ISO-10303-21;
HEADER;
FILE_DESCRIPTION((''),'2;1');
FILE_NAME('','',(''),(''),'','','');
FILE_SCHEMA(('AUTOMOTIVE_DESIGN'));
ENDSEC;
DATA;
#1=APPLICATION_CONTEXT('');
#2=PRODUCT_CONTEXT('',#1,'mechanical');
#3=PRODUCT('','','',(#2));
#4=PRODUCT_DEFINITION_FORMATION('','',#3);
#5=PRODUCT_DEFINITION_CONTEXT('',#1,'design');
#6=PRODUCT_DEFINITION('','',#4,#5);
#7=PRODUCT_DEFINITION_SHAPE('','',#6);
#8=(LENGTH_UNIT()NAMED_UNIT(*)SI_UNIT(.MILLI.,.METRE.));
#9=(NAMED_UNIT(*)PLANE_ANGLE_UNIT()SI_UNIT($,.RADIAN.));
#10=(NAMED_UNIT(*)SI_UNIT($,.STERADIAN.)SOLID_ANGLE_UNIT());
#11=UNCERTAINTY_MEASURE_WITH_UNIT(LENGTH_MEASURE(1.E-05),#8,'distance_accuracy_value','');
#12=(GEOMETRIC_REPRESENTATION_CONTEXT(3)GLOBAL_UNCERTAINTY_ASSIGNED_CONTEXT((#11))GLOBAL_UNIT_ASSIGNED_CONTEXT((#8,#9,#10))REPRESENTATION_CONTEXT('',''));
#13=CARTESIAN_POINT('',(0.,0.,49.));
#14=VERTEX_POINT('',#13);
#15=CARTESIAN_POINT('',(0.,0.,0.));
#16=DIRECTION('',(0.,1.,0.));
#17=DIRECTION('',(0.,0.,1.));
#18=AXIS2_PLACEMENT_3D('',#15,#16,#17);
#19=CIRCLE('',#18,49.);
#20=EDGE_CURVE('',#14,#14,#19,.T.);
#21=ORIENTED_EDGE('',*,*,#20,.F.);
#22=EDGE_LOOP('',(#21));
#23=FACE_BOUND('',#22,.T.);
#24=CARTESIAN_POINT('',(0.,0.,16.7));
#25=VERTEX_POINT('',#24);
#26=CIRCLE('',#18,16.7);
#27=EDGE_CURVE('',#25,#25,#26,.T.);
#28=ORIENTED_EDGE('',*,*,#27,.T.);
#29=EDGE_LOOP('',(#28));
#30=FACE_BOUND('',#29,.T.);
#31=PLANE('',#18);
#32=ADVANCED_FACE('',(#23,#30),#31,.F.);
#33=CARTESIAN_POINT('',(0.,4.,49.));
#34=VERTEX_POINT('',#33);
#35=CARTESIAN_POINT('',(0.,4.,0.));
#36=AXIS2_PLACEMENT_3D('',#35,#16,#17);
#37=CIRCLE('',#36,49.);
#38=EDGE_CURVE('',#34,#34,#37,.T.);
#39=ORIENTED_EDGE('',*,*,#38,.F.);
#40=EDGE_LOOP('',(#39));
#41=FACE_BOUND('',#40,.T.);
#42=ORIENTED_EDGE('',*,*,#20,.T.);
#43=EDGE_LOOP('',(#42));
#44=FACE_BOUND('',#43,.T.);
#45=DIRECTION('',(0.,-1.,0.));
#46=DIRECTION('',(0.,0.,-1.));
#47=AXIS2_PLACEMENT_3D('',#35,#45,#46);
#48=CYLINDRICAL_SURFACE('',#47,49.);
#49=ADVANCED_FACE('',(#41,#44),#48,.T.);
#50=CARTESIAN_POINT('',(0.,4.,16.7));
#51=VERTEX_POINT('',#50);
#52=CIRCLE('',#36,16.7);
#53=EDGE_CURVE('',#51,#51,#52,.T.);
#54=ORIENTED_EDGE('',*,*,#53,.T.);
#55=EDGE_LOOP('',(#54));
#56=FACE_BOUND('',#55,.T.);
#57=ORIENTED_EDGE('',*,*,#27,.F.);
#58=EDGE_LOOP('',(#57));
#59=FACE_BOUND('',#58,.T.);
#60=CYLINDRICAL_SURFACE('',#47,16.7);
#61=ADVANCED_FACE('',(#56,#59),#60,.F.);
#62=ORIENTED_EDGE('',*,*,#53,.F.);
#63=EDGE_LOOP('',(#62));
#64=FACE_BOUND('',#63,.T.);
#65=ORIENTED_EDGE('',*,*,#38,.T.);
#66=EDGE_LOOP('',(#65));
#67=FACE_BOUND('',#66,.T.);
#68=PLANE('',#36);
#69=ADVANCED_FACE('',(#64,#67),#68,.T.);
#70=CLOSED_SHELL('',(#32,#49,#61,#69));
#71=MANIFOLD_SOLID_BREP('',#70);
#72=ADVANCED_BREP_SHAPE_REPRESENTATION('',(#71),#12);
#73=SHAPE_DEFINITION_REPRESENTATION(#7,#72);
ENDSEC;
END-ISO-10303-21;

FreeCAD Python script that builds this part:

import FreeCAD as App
import Part
import Sketcher
from FreeCAD import Vector
Q = App.Units.Quantity

doc = App.newDocument("Part")
params = doc.addObject("Spreadsheet::Sheet", "Params")
for row, (alias, value) in enumerate([
    ("sketch1_diameter", "98 mm"),
    ("sketch1_diameter2", "33.4 mm"),
    ("pad1_length", "4 mm"),
], start=1):
    params.set(f"A{row}", alias)
    params.set(f"B{row}", "=" + value)
    params.setAlias(f"B{row}", alias)

body = doc.addObject("PartDesign::Body", "Body")

# Sketch on XZ plane
sketch1 = body.newObject("Sketcher::SketchObject", "Sketch")
sketch1.AttachmentSupport = (doc.getObject("XZ_Plane"), [""])
sketch1.MapMode = "FlatFace"
sketch1.addGeometry(Part.Circle(Vector(0, 0, 0), Vector(0, 0, 1), 49), False)
sketch1.addGeometry(Part.Circle(Vector(0, 0, 0), Vector(0, 0, 1), 17), False)
sketch1.addConstraint(Sketcher.Constraint("Coincident", 0, 3, -1, 1))
sketch1.addConstraint(Sketcher.Constraint("Coincident", 1, 3, -1, 1))
sketch1.addConstraint(Sketcher.Constraint("Diameter", 0, Q("98 mm")))
sketch1.addConstraint(Sketcher.Constraint("Diameter", 1, Q("33.4 mm")))
sketch1.setExpression("Constraints[2]", "Params.sketch1_diameter")
sketch1.setExpression("Constraints[3]", "Params.sketch1_diameter2")
pad1 = body.newObject("PartDesign::Pad", "Pad")
pad1.Profile = sketch1
pad1.setExpression("Length", "Params.pad1_length")
pad1.Reversed = True

doc.recompute()
